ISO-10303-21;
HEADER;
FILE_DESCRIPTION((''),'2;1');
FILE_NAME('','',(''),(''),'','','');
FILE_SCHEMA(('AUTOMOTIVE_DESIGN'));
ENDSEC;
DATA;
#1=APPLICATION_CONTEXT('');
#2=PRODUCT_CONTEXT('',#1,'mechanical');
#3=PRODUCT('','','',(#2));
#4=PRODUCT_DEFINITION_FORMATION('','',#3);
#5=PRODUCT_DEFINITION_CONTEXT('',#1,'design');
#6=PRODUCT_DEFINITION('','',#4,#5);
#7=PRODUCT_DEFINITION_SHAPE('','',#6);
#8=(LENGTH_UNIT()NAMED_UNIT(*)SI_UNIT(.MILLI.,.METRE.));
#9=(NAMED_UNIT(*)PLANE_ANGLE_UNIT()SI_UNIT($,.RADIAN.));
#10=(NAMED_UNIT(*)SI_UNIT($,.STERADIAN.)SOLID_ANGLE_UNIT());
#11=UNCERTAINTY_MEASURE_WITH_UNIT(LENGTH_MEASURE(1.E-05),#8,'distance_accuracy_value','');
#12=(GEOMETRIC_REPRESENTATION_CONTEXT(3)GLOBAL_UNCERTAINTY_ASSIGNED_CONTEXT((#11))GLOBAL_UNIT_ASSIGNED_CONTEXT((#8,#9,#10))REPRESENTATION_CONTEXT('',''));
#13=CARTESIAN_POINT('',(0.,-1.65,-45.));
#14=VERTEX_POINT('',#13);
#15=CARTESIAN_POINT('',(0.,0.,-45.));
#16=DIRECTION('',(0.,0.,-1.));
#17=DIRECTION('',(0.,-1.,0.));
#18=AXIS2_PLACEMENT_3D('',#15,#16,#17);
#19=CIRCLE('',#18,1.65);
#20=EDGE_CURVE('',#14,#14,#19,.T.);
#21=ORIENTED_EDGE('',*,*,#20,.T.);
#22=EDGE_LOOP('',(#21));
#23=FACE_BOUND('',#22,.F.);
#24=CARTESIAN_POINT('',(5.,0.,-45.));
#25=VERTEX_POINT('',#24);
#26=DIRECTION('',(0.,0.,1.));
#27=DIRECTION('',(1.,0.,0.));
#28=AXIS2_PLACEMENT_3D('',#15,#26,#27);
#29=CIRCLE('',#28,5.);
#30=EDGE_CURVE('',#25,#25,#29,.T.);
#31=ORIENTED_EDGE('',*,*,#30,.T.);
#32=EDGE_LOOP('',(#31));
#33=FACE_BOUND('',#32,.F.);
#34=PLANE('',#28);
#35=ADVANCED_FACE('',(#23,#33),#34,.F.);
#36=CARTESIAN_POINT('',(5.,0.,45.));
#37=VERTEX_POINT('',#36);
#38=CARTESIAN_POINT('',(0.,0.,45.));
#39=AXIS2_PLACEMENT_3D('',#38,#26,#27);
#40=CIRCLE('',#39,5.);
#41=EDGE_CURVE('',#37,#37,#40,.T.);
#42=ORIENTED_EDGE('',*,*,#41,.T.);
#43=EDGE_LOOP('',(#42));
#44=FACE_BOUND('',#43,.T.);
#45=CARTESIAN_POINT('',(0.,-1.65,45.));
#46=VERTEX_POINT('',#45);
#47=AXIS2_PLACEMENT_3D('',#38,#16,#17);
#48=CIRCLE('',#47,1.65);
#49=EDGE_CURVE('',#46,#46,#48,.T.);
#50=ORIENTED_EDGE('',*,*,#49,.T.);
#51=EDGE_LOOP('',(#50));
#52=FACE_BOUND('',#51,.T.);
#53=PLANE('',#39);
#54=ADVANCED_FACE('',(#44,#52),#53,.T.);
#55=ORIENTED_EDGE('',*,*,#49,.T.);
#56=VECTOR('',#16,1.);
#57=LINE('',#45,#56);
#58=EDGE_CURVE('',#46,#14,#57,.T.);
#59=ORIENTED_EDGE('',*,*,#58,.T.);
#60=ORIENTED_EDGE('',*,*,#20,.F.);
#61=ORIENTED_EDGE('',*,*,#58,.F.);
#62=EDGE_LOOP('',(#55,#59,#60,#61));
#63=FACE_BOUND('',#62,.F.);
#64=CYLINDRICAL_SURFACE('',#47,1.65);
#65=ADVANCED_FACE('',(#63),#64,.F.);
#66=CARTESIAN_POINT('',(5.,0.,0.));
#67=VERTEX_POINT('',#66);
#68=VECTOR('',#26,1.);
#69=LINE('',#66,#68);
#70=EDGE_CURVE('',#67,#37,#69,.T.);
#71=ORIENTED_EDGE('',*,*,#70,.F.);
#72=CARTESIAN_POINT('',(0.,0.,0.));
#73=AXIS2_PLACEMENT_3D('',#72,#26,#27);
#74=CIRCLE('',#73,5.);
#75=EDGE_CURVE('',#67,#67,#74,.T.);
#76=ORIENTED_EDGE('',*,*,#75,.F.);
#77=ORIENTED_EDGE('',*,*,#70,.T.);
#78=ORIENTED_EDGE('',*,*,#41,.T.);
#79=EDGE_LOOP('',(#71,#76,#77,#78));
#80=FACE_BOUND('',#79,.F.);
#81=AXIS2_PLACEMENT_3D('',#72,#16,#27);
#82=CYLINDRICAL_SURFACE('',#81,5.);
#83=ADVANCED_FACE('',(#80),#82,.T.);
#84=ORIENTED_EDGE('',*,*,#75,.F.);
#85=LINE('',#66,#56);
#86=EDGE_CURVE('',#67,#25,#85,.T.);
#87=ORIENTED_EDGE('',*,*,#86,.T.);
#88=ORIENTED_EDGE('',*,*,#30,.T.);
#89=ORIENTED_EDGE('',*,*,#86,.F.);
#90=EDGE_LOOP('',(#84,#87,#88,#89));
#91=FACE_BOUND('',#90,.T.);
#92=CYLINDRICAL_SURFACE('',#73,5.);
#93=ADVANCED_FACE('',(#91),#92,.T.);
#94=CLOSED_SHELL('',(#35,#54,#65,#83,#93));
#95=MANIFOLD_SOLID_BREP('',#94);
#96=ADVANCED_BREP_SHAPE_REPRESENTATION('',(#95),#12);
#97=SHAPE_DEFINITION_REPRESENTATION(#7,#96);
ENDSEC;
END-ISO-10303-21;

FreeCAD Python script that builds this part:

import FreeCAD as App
import Part
import Sketcher

V = App.Vector
Q = App.Units.Quantity

doc = App.newDocument("Part")
params = doc.addObject("Spreadsheet::Sheet", "Params")
for row, (alias, value) in enumerate([
    ("sketch1_diameter", "10 mm"),
    ("pad1_length", "90 mm"),
    ("sketch2_diameter", "3.3 mm"),
    ("hole_diameter", "3.3 mm"),
], start=1):
    params.set(f"A{row}", alias)
    params.set(f"B{row}", "=" + value)
    params.setAlias(f"B{row}", alias)

body = doc.addObject("PartDesign::Body", "Body")

sketch1 = body.newObject("Sketcher::SketchObject", "Sketch")
sketch1.AttachmentSupport = (doc.getObject("XY_Plane"), [""])
sketch1.MapMode = "FlatFace"
sketch1.addGeometry(Part.Circle(V(0, 0, 0), V(0, 0, 1), 5), False)
sketch1.addConstraint(Sketcher.Constraint("Coincident", 0, 3, -1, 1))
sketch1.addConstraint(Sketcher.Constraint("Diameter", 0, Q("10 mm")))
sketch1.setExpression("Constraints[1]", "Params.sketch1_diameter")
pad1 = body.newObject("PartDesign::Pad", "Pad")
pad1.Profile = sketch1
pad1.setExpression("Length", "Params.pad1_length")
pad1.Midplane = True

sketch2 = body.newObject("Sketcher::SketchObject", "Sketch001")
sketch2.AttachmentSupport = (doc.getObject("XY_Plane"), [""])
sketch2.MapMode = "FlatFace"
sketch2.AttachmentOffset = App.Placement(V(0, 0, 45), App.Rotation())
sketch2.addGeometry(Part.Circle(V(0, 0, 0), V(0, 0, 1), 1.65), False)
sketch2.addConstraint(Sketcher.Constraint("Coincident", 0, 3, -1, 1))
sketch2.addConstraint(Sketcher.Constraint("Diameter", 0, Q("3.3 mm")))
sketch2.setExpression("Constraints[1]", "Params.sketch2_diameter")
doc.recompute()
hole = body.newObject("PartDesign::Hole", "Hole")
hole.Profile = sketch2
hole.ThreadType = "None"
hole.setExpression("Diameter", "Params.hole_diameter")
hole.DepthType = "ThroughAll"

doc.recompute()
